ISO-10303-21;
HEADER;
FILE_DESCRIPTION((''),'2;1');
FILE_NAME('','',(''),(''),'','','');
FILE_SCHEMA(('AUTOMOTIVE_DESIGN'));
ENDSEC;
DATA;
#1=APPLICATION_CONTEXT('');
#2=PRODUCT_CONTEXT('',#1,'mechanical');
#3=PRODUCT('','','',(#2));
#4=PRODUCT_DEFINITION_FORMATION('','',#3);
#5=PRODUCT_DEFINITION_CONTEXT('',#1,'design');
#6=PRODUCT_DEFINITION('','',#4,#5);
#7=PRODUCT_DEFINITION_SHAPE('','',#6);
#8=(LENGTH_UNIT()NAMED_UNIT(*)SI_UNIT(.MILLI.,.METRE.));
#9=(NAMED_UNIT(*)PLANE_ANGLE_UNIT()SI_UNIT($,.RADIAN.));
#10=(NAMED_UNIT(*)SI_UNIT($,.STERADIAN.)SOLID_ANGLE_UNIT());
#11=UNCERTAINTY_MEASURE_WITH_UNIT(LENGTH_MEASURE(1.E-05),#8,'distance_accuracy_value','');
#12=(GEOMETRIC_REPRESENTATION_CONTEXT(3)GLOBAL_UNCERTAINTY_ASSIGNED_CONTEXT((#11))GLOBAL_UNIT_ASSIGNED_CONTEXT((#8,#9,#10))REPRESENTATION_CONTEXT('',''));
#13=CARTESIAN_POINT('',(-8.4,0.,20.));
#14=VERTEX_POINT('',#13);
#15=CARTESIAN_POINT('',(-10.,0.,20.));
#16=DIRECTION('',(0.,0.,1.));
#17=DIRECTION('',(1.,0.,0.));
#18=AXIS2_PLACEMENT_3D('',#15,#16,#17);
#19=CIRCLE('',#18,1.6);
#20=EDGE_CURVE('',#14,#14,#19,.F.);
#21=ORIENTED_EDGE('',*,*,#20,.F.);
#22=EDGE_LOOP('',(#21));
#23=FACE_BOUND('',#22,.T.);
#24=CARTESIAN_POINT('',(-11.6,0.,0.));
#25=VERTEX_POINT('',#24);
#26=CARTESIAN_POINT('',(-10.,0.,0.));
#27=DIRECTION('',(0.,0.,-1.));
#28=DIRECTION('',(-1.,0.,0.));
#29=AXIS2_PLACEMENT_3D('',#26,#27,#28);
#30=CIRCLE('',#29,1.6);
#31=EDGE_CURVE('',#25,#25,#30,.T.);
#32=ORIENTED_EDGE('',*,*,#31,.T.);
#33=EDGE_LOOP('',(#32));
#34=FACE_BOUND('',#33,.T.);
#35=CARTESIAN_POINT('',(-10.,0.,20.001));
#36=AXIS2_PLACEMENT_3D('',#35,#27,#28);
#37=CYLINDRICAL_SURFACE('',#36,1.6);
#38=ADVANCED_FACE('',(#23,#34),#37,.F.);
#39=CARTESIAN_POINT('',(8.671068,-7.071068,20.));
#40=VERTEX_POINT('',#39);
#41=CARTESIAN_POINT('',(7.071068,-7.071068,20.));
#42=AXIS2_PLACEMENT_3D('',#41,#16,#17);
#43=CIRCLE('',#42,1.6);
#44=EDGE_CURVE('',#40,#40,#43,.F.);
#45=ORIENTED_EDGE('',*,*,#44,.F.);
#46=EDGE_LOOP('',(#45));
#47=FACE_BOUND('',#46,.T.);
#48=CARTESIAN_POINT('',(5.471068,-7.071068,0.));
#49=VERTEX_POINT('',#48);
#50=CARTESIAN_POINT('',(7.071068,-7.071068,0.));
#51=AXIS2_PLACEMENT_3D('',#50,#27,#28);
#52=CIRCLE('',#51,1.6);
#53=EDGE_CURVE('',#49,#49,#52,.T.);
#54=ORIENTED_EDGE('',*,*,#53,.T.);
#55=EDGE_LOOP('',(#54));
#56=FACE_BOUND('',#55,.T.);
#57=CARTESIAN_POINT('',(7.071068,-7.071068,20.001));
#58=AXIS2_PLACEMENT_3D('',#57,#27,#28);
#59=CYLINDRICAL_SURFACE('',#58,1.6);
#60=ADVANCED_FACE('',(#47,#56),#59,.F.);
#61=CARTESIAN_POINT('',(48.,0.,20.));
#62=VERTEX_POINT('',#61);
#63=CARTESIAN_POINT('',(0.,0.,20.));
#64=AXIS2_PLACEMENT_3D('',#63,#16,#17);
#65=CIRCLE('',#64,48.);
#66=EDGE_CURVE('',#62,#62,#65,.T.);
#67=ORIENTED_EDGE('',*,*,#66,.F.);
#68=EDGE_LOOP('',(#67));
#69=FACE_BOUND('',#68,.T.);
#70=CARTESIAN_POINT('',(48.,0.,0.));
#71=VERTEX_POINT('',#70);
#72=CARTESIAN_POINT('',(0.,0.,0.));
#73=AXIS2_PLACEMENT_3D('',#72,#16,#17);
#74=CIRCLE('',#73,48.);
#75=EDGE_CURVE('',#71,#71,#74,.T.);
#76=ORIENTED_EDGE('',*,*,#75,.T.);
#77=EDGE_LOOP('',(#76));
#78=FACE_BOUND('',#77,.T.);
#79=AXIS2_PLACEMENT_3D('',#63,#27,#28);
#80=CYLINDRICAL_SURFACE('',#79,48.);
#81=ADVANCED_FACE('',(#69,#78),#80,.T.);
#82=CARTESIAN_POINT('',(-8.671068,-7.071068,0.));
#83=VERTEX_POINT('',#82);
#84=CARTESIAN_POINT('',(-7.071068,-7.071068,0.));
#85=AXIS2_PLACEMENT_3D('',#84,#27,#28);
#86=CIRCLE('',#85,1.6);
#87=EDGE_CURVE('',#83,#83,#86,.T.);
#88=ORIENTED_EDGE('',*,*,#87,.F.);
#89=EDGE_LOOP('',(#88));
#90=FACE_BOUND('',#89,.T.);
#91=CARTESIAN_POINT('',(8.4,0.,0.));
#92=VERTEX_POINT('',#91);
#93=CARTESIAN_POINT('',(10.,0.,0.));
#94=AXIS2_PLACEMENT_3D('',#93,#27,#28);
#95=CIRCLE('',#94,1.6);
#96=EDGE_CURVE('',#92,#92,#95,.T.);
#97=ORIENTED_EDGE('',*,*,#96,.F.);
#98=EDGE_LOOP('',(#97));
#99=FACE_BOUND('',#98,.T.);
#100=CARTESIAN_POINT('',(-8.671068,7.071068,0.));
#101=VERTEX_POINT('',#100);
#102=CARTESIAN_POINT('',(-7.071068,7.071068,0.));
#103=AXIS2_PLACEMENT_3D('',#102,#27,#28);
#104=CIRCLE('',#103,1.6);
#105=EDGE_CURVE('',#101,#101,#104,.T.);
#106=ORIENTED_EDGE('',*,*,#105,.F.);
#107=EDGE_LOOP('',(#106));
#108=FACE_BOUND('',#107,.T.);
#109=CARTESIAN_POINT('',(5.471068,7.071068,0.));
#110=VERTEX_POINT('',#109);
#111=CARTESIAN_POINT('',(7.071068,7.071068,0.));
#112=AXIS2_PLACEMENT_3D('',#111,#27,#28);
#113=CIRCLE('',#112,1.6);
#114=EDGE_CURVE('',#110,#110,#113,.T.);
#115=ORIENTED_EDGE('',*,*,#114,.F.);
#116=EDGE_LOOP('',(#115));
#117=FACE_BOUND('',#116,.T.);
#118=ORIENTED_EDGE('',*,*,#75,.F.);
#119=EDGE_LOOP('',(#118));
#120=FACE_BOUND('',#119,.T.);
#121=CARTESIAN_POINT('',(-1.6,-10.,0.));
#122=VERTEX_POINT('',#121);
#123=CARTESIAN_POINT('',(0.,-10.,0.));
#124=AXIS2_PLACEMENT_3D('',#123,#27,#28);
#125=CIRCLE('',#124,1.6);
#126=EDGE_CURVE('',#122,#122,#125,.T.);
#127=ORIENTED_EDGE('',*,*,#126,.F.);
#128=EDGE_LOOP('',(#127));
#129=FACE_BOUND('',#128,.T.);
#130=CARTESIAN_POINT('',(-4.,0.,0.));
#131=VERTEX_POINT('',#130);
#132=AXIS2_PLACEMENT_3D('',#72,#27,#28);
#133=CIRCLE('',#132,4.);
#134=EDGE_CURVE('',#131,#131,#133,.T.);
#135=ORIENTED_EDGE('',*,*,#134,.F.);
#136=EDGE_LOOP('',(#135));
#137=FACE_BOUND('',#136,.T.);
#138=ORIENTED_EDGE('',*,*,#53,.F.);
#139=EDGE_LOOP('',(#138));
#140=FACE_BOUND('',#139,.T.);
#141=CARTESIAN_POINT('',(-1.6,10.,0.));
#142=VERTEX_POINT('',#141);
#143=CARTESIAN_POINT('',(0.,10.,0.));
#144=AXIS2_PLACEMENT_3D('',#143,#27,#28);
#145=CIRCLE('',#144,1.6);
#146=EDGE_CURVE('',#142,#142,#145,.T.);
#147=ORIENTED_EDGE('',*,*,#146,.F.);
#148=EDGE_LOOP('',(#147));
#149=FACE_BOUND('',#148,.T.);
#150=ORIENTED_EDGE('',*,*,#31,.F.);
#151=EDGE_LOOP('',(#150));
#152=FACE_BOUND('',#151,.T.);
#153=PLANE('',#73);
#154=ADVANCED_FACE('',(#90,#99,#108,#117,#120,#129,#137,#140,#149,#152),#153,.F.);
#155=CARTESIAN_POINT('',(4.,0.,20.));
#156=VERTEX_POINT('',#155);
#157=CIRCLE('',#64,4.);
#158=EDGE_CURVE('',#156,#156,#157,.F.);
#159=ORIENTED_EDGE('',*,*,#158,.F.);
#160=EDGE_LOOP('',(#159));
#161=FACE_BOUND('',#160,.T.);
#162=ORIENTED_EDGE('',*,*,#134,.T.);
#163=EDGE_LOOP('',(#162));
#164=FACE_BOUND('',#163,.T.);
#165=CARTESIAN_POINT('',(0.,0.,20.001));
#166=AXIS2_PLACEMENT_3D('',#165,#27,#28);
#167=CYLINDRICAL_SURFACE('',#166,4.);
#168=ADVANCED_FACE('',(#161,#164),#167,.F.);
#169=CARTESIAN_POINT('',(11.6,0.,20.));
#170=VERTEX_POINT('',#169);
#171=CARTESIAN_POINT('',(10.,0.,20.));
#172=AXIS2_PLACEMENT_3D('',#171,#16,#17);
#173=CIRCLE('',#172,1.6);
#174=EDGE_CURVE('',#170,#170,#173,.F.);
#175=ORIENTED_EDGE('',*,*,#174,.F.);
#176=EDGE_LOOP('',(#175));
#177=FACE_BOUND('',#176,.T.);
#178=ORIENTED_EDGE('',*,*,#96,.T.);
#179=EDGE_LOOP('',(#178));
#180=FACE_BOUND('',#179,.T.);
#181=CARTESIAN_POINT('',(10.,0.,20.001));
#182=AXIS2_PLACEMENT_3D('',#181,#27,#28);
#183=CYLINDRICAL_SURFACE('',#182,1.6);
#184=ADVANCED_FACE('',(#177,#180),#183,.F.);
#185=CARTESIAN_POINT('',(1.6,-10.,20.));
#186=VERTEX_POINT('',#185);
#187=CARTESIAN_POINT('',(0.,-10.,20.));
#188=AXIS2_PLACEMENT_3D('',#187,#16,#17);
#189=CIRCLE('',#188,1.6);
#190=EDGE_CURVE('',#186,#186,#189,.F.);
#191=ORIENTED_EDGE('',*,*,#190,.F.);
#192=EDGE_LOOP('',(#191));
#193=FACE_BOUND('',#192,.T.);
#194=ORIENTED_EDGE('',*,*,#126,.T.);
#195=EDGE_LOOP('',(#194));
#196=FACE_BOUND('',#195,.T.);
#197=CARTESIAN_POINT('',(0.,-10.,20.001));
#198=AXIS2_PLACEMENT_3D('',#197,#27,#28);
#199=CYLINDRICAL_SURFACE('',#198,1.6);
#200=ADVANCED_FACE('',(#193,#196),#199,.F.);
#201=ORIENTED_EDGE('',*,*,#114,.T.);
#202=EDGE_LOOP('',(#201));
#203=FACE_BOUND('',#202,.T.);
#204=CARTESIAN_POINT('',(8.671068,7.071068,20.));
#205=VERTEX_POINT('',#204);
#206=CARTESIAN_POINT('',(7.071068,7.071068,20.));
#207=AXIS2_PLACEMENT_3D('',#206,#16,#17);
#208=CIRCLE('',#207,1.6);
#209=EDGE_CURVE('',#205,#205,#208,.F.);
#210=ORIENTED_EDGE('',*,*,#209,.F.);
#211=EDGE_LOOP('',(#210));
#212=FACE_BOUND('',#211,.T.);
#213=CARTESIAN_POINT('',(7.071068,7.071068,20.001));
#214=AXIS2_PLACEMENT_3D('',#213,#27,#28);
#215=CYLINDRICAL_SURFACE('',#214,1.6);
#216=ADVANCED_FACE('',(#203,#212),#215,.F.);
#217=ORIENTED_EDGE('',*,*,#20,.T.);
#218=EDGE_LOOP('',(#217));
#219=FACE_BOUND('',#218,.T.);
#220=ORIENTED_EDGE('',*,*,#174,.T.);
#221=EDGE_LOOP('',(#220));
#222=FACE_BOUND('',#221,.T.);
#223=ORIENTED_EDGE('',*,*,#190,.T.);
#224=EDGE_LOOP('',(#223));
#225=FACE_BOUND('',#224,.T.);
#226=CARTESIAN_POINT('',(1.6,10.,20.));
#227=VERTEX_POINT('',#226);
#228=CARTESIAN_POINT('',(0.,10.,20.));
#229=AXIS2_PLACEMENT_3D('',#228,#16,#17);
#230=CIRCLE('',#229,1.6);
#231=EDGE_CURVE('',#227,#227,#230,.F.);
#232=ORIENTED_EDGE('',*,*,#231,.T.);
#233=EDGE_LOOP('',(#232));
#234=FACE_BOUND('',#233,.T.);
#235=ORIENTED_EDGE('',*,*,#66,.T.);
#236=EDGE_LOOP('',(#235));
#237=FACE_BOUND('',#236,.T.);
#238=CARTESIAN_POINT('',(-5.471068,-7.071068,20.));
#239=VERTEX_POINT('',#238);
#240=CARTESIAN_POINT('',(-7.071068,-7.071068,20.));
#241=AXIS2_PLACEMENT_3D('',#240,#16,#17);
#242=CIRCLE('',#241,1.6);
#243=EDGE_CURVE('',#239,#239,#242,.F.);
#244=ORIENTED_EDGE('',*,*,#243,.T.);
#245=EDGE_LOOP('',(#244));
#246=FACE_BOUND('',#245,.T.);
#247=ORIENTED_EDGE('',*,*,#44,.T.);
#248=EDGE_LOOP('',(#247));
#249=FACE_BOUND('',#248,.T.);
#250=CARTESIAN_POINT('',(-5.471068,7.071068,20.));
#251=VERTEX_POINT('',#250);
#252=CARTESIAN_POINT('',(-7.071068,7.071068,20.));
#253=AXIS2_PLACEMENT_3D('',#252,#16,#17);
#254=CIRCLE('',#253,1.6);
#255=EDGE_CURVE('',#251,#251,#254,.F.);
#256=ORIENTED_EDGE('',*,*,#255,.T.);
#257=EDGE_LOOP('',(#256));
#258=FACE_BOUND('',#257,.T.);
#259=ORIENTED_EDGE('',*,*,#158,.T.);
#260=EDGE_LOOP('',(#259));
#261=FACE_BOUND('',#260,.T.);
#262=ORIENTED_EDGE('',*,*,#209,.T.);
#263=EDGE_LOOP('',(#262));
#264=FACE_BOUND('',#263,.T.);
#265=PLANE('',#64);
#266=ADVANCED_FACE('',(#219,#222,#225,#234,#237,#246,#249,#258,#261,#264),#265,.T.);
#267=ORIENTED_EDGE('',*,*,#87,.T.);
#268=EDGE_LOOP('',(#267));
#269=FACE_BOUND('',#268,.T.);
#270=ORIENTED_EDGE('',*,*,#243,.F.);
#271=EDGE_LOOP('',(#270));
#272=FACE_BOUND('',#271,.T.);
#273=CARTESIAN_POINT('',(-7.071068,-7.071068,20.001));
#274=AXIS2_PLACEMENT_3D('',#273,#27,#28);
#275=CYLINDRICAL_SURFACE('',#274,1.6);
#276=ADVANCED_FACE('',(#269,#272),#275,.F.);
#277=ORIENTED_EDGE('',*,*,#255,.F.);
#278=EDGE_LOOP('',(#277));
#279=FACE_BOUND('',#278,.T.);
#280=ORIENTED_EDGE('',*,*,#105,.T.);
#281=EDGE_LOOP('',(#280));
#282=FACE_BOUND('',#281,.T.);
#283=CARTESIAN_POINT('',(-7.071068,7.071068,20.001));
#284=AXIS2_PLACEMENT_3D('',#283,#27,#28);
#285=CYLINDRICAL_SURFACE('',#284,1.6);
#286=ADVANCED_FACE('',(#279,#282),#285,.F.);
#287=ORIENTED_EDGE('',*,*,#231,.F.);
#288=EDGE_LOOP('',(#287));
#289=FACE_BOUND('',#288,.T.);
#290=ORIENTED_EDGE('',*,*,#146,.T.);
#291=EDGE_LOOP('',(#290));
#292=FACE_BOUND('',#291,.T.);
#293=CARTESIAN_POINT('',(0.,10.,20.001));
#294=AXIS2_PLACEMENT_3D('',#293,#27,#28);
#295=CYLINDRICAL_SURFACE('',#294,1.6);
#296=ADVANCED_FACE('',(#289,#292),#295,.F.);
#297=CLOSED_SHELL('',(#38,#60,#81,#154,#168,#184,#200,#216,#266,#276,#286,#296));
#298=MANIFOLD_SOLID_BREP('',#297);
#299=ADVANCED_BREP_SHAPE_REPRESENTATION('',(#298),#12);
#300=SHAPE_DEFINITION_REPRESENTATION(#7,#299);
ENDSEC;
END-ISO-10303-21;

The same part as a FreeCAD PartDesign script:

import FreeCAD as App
import Part
import Sketcher
Q = App.Units.Quantity

doc = App.newDocument("Part")
body = doc.addObject("PartDesign::Body", "Body")

# Sketch on XY plane
sketch1 = body.newObject("Sketcher::SketchObject", "Sketch")
sketch1.AttachmentSupport = (doc.getObject("XY_Plane"), [""])
sketch1.MapMode = "FlatFace"
sketch1.addGeometry(Part.Circle(App.Vector(0, 0, 0), App.Vector(0, 0, 1), 48), False)
sketch1.addConstraint(Sketcher.Constraint("Coincident", 0, 3, -1, 1))
sketch1.addConstraint(Sketcher.Constraint("Diameter", 0, Q("96 mm")))
pad1 = body.newObject("PartDesign::Pad", "Pad")
pad1.Profile = sketch1
pad1.Length = 20

# Sketch on XY plane
sketch2 = body.newObject("Sketcher::SketchObject", "Sketch001")
sketch2.AttachmentSupport = (doc.getObject("XY_Plane"), [""])
sketch2.MapMode = "FlatFace"
sketch2.addGeometry(Part.Circle(App.Vector(0, 0, 0), App.Vector(0, 0, 1), 4), False)
sketch2.addConstraint(Sketcher.Constraint("Coincident", 0, 3, -1, 1))
sketch2.addConstraint(Sketcher.Constraint("Diameter", 0, Q("8 mm")))
pocket1 = body.newObject("PartDesign::Pocket", "Pocket")
pocket1.Profile = sketch2
pocket1.Type = "UpToFirst"
pocket1.Reversed = True

# Sketch on XY plane
sketch3 = body.newObject("Sketcher::SketchObject", "Sketch002")
sketch3.AttachmentSupport = (doc.getObject("XY_Plane"), [""])
sketch3.MapMode = "FlatFace"
sketch3.addGeometry(Part.Circle(App.Vector(0, 10, 0), App.Vector(0, 0, 1), 1.6), False)
sketch3.addConstraint(Sketcher.Constraint("PointOnObject", 0, 3, -2))
sketch3.addConstraint(Sketcher.Constraint("Diameter", 0, Q("3.2 mm")))
sketch3.addConstraint(Sketcher.Constraint("DistanceY", -1, 1, 0, 3, Q("10 mm")))
pocket2 = body.newObject("PartDesign::Pocket", "Pocket001")
pocket2.Profile = sketch3
pocket2.Type = "UpToFirst"
pocket2.Reversed = True

# Sketch on XY plane
sketch4 = body.newObject("Sketcher::SketchObject", "Sketch003")
sketch4.AttachmentSupport = (doc.getObject("XY_Plane"), [""])
sketch4.MapMode = "FlatFace"
sketch4.addGeometry(Part.Circle(App.Vector(-7.071068, 7.071068, 0), App.Vector(0, 0, 1), 1.6), False)
sketch4.addConstraint(Sketcher.Constraint("Diameter", 0, Q("3.2 mm")))
sketch4.addConstraint(Sketcher.Constraint("DistanceX", 0, 3, -1, 1, Q("7.071068 mm")))
sketch4.addConstraint(Sketcher.Constraint("DistanceY", -1, 1, 0, 3, Q("7.071068 mm")))
pocket3 = body.newObject("PartDesign::Pocket", "Pocket002")
pocket3.Profile = sketch4
pocket3.Type = "UpToFirst"
pocket3.Reversed = True

# Sketch on XY plane
sketch5 = body.newObject("Sketcher::SketchObject", "Sketch004")
sketch5.AttachmentSupport = (doc.getObject("XY_Plane"), [""])
sketch5.MapMode = "FlatFace"
sketch5.addGeometry(Part.Circle(App.Vector(-10, 0, 0), App.Vector(0, 0, 1), 1.6), False)
sketch5.addConstraint(Sketcher.Constraint("PointOnObject", 0, 3, -1))
sketch5.addConstraint(Sketcher.Constraint("Diameter", 0, Q("3.2 mm")))
sketch5.addConstraint(Sketcher.Constraint("DistanceX", 0, 3, -1, 1, Q("10 mm")))
pocket4 = body.newObject("PartDesign::Pocket", "Pocket003")
pocket4.Profile = sketch5
pocket4.Type = "UpToFirst"
pocket4.Reversed = True

# Sketch on XY plane
sketch6 = body.newObject("Sketcher::SketchObject", "Sketch005")
sketch6.AttachmentSupport = (doc.getObject("XY_Plane"), [""])
sketch6.MapMode = "FlatFace"
sketch6.addGeometry(Part.Circle(App.Vector(-7.071068, -7.071068, 0), App.Vector(0, 0, 1), 1.6), False)
sketch6.addConstraint(Sketcher.Constraint("Diameter", 0, Q("3.2 mm")))
sketch6.addConstraint(Sketcher.Constraint("DistanceX", 0, 3, -1, 1, Q("7.071068 mm")))
sketch6.addConstraint(Sketcher.Constraint("DistanceY", 0, 3, -1, 1, Q("7.071068 mm")))
pocket5 = body.newObject("PartDesign::Pocket", "Pocket004")
pocket5.Profile = sketch6
pocket5.Type = "UpToFirst"
pocket5.Reversed = True

# Sketch on XY plane
sketch7 = body.newObject("Sketcher::SketchObject", "Sketch006")
sketch7.AttachmentSupport = (doc.getObject("XY_Plane"), [""])
sketch7.MapMode = "FlatFace"
sketch7.addGeometry(Part.Circle(App.Vector(0, -10, 0), App.Vector(0, 0, 1), 1.6), False)
sketch7.addConstraint(Sketcher.Constraint("PointOnObject", 0, 3, -2))
sketch7.addConstraint(Sketcher.Constraint("Diameter", 0, Q("3.2 mm")))
sketch7.addConstraint(Sketcher.Constraint("DistanceY", 0, 3, -1, 1, Q("10 mm")))
pocket6 = body.newObject("PartDesign::Pocket", "Pocket005")
pocket6.Profile = sketch7
pocket6.Type = "UpToFirst"
pocket6.Reversed = True

# Sketch on XY plane
sketch8 = body.newObject("Sketcher::SketchObject", "Sketch007")
sketch8.AttachmentSupport = (doc.getObject("XY_Plane"), [""])
sketch8.MapMode = "FlatFace"
sketch8.addGeometry(Part.Circle(App.Vector(7.071068, -7.071068, 0), App.Vector(0, 0, 1), 1.6), False)
sketch8.addConstraint(Sketcher.Constraint("Diameter", 0, Q("3.2 mm")))
sketch8.addConstraint(Sketcher.Constraint("DistanceX", -1, 1, 0, 3, Q("7.071068 mm")))
sketch8.addConstraint(Sketcher.Constraint("DistanceY", 0, 3, -1, 1, Q("7.071068 mm")))
pocket7 = body.newObject("PartDesign::Pocket", "Pocket006")
pocket7.Profile = sketch8
pocket7.Type = "UpToFirst"
pocket7.Reversed = True

# Sketch on XY plane
sketch9 = body.newObject("Sketcher::SketchObject", "Sketch008")
sketch9.AttachmentSupport = (doc.getObject("XY_Plane"), [""])
sketch9.MapMode = "FlatFace"
sketch9.addGeometry(Part.Circle(App.Vector(10, 0, 0), App.Vector(0, 0, 1), 1.6), False)
sketch9.addConstraint(Sketcher.Constraint("PointOnObject", 0, 3, -1))
sketch9.addConstraint(Sketcher.Constraint("Diameter", 0, Q("3.2 mm")))
sketch9.addConstraint(Sketcher.Constraint("DistanceX", -1, 1, 0, 3, Q("10 mm")))
pocket8 = body.newObject("PartDesign::Pocket", "Pocket007")
pocket8.Profile = sketch9
pocket8.Type = "UpToFirst"
pocket8.Reversed = True

# Sketch on XY plane
sketch10 = body.newObject("Sketcher::SketchObject", "Sketch009")
sketch10.AttachmentSupport = (doc.getObject("XY_Plane"), [""])
sketch10.MapMode = "FlatFace"
sketch10.addGeometry(Part.Circle(App.Vector(7.071068, 7.071068, 0), App.Vector(0, 0, 1), 1.6), False)
sketch10.addConstraint(Sketcher.Constraint("Diameter", 0, Q("3.2 mm")))
sketch10.addConstraint(Sketcher.Constraint("DistanceX", -1, 1, 0, 3, Q("7.071068 mm")))
sketch10.addConstraint(Sketcher.Constraint("DistanceY", -1, 1, 0, 3, Q("7.071068 mm")))
pocket9 = body.newObject("PartDesign::Pocket", "Pocket008")
pocket9.Profile = sketch10
pocket9.Type = "UpToFirst"
pocket9.Reversed = True

doc.recompute()
